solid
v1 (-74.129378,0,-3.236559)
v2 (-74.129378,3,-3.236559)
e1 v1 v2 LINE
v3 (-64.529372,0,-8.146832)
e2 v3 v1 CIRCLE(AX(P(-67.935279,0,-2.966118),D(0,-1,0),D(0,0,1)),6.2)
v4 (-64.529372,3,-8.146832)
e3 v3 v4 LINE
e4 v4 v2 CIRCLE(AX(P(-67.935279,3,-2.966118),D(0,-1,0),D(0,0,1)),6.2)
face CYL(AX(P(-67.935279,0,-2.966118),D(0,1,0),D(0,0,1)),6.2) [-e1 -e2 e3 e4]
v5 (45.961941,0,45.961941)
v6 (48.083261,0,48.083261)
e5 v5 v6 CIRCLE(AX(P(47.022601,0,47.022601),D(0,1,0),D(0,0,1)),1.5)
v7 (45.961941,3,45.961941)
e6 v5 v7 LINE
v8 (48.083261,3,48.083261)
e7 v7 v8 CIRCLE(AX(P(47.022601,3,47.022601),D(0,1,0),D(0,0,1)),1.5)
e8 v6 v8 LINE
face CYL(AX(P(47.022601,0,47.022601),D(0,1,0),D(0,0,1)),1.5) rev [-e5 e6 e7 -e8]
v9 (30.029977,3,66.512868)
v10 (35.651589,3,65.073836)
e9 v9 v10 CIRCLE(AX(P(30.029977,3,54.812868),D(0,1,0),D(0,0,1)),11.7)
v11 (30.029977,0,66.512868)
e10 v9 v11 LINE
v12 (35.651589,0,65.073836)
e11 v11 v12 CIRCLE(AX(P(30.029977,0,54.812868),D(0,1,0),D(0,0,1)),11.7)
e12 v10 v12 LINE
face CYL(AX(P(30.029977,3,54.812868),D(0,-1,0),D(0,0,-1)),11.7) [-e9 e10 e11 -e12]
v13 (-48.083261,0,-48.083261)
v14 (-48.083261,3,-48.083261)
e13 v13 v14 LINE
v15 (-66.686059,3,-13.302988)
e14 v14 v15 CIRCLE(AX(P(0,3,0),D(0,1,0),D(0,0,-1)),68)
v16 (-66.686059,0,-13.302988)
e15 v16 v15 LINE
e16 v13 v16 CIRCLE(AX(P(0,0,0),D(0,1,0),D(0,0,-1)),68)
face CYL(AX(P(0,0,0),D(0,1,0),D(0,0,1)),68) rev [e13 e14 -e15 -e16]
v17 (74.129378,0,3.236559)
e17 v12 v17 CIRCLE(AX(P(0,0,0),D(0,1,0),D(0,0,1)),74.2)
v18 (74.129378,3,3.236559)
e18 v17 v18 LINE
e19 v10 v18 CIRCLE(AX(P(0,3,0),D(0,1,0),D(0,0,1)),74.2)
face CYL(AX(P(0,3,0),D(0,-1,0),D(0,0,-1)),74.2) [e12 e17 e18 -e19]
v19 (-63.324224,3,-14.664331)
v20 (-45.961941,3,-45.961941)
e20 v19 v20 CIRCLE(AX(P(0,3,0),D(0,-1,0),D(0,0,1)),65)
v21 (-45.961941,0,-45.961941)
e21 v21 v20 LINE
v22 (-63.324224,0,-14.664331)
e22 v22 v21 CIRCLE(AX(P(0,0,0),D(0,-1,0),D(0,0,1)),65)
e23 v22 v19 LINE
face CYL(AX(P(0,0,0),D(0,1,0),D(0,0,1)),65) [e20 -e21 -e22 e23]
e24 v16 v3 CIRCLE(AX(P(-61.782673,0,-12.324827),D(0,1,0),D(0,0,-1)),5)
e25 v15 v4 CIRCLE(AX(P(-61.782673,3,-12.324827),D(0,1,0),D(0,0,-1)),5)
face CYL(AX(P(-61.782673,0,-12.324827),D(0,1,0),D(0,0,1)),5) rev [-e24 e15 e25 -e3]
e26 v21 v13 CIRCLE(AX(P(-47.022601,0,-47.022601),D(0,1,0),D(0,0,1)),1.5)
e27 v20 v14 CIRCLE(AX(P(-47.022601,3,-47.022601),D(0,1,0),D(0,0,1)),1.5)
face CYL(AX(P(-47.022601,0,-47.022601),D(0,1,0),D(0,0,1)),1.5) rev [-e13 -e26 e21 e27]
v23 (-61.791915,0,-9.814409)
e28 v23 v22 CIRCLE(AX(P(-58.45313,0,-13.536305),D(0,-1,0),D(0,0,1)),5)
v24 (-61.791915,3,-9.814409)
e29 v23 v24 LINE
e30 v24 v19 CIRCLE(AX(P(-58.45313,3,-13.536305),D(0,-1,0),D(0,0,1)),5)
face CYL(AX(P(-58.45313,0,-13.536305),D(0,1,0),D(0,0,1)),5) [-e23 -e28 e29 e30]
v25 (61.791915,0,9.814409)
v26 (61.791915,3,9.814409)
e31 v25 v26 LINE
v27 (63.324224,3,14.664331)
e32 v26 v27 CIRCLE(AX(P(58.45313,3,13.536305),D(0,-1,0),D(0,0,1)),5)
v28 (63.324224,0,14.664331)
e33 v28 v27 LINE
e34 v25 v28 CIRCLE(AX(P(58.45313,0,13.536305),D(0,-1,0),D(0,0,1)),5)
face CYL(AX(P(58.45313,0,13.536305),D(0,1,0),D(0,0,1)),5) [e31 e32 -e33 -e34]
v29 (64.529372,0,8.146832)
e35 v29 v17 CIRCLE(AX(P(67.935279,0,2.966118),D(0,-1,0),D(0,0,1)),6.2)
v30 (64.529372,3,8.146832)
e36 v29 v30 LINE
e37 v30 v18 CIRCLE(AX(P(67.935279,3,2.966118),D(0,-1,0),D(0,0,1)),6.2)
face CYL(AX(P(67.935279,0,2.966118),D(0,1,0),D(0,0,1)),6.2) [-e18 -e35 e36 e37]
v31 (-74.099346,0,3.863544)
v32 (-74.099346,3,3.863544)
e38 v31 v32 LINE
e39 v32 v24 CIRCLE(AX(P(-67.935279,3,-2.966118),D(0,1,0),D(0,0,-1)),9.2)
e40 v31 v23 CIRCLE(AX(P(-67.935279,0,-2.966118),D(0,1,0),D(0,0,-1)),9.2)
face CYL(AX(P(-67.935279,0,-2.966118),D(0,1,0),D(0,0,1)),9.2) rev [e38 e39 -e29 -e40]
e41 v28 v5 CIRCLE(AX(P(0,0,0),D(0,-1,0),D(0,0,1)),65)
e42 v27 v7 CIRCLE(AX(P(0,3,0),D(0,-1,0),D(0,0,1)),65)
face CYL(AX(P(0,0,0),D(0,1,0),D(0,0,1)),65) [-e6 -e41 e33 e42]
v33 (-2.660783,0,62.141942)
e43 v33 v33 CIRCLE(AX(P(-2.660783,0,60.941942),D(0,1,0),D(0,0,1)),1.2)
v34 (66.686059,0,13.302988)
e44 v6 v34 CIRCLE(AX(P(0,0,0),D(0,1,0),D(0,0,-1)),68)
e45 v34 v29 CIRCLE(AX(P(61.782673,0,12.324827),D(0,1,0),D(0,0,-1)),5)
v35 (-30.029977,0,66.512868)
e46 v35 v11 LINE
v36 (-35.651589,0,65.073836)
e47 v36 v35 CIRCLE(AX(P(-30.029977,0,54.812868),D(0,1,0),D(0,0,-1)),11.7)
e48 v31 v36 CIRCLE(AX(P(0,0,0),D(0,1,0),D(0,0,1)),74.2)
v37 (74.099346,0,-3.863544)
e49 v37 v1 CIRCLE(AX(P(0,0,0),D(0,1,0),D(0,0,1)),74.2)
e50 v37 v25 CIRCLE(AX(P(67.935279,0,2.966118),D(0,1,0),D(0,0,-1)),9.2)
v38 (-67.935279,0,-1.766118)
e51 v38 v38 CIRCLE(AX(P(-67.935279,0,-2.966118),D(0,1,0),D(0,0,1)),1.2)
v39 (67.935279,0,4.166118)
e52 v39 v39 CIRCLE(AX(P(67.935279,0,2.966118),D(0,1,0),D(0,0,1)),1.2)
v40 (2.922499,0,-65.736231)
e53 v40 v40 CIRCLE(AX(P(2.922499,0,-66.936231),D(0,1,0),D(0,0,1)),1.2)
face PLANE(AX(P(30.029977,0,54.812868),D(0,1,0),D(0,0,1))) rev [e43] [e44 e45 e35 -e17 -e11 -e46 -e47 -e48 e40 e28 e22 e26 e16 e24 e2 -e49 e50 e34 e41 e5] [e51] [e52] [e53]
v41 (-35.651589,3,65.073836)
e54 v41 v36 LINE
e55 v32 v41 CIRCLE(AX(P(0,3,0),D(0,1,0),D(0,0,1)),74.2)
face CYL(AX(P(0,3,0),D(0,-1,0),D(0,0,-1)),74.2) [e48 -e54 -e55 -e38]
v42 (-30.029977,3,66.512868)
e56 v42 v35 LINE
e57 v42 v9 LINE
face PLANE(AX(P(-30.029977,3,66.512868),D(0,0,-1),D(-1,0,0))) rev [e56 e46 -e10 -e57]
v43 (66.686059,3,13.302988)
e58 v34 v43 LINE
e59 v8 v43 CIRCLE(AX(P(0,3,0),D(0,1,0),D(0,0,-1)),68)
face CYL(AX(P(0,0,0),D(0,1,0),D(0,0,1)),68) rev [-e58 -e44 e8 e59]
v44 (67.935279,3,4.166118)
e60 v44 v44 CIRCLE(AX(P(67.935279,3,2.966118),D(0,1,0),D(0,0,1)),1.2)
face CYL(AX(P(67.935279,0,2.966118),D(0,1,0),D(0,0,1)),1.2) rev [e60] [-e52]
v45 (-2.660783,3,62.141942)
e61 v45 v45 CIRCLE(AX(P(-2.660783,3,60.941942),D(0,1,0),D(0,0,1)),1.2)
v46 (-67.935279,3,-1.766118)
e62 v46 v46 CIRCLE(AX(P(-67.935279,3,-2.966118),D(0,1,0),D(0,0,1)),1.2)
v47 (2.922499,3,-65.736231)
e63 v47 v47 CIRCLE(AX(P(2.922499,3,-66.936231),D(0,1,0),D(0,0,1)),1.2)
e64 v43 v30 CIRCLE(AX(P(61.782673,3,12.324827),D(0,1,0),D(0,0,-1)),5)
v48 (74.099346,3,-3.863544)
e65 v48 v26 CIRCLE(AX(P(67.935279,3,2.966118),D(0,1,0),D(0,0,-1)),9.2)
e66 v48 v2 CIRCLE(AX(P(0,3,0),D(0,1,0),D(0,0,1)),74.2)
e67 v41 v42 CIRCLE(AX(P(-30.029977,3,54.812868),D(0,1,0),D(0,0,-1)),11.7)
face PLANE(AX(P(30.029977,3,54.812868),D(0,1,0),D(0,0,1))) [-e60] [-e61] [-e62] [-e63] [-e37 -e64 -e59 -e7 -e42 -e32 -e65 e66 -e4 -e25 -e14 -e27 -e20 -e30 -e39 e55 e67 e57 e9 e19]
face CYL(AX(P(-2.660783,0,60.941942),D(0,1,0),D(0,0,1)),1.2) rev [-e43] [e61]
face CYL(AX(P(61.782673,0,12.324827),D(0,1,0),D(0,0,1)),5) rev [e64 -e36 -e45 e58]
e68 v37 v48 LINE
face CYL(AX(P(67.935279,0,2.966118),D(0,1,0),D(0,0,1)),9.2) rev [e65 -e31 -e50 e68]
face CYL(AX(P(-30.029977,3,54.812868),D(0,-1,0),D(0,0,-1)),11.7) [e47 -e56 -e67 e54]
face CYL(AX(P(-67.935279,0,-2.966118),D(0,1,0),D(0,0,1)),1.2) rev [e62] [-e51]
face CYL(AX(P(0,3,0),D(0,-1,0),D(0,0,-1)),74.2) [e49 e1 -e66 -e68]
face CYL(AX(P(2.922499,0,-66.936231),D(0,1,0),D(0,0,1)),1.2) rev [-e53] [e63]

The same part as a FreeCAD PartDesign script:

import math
import FreeCAD as App
import Part
import Sketcher

V = App.Vector
Q = App.Units.Quantity

doc = App.newDocument("Part")
body = doc.addObject("PartDesign::Body", "Body")

# Sketch on XZ plane
sketch1 = body.newObject("Sketcher::SketchObject", "Sketch")
sketch1.AttachmentSupport = (doc.getObject("XZ_Plane"), [""])
sketch1.MapMode = "FlatFace"
sketch1.addGeometry([
    Part.LineSegment(V(-30, 67, 0), V(30, 67, 0)),
    Part.ArcOfCircle(Part.Circle(V(30, 55, 0), V(0, 0, 1), 12), math.radians(61), math.radians(90)),
    Part.ArcOfCircle(Part.Circle(V(0, 0, 0), V(0, 0, 1), 74), math.radians(119), math.radians(421)),
    Part.ArcOfCircle(Part.Circle(V(-30, 55, 0), V(0, 0, 1), 12), math.radians(90), math.radians(119)),
], False)
sketch1.addConstraint([
    Sketcher.Constraint("Tangent", 0, 2, 1, 2),
    Sketcher.Constraint("Tangent", 1, 1, 2, 2),
    Sketcher.Constraint("Tangent", 2, 1, 3, 2),
    Sketcher.Constraint("Tangent", 3, 1, 0, 1),
    Sketcher.Constraint("Horizontal", 0),
    Sketcher.Constraint("Coincident", 2, 3, -1, 1),
    Sketcher.Constraint("Equal", 1, 3),
    Sketcher.Constraint("Radius", 1, Q("11.7 mm")),
    Sketcher.Constraint("Radius", 2, Q("74.2 mm")),
    Sketcher.Constraint("DistanceX", 0, 1, 0, 2, Q("60.059955 mm")),
])
pad1 = body.newObject("PartDesign::Pad", "Pad")
pad1.Profile = sketch1
pad1.Length = 3
pad1.Reversed = True

# Sketch on XZ plane
sketch2 = body.newObject("Sketcher::SketchObject", "Sketch001")
sketch2.AttachmentSupport = (doc.getObject("XZ_Plane"), [""])
sketch2.MapMode = "FlatFace"
sketch2.AttachmentOffset = App.Placement(V(0, 0, -3), App.Rotation())
sketch2.addGeometry([
    Part.Circle(V(-2.7, 60.9, 0), V(0, 0, 1), 1.2),
    Part.Circle(V(-67.9, -3, 0), V(0, 0, 1), 1.2),
    Part.Circle(V(2.9, -66.9, 0), V(0, 0, 1), 1.2),
    Part.Circle(V(67.9, 3, 0), V(0, 0, 1), 1.2),
], False)
sketch2.addConstraint([
    Sketcher.Constraint("Equal", 0, 1),
    Sketcher.Constraint("Equal", 1, 2),
    Sketcher.Constraint("Equal", 2, 3),
    Sketcher.Constraint("Symmetric", 1, 3, 3, 3, -1, 1),
    Sketcher.Constraint("Diameter", 0, Q("2.4 mm")),
    Sketcher.Constraint("DistanceX", -1, 1, 2, 3, Q("2.922499 mm")),
    Sketcher.Constraint("DistanceY", -1, 1, 0, 3, Q("60.941942 mm")),
    Sketcher.Constraint("DistanceX", 1, 3, -1, 1, Q("67.935279 mm")),
    Sketcher.Constraint("DistanceY", 1, 3, -1, 1, Q("2.966118 mm")),
    Sketcher.Constraint("DistanceY", 2, 3, -1, 1, Q("66.936231 mm")),
    Sketcher.Constraint("DistanceX", 0, 3, 2, 3, Q("5.583282 mm")),
])
pocket1 = body.newObject("PartDesign::Pocket", "Pocket")
pocket1.Profile = sketch2
pocket1.Type = "ThroughAll"
pocket1.Reversed = True

# Sketch on XZ plane
sketch3 = body.newObject("Sketcher::SketchObject", "Sketch002")
sketch3.AttachmentSupport = (doc.getObject("XZ_Plane"), [""])
sketch3.MapMode = "FlatFace"
sketch3.AttachmentOffset = App.Placement(V(0, 0, -3), App.Rotation())
sketch3.addGeometry([
    Part.ArcOfCircle(Part.Circle(V(-67.9, -3, 0), V(0, 0, 1), 6.2), math.radians(-57), math.radians(183)),  # 0
    Part.ArcOfCircle(Part.Circle(V(0, 0, 0), V(0, 0, 1), 74.2), math.radians(177.02), math.radians(182.5)),  # 1
    Part.ArcOfCircle(Part.Circle(V(-67.9, -3, 0), V(0, 0, 1), 9.2), math.radians(-48), math.radians(132)),  # 2
    Part.ArcOfCircle(Part.Circle(V(-58.5, -13.5, 0), V(0, 0, 1), 5), math.radians(132), math.radians(193)),  # 3
    Part.ArcOfCircle(Part.Circle(V(0, 0, 0), V(0, 0, 1), 65), math.radians(-167), math.radians(-135)),  # 4
    Part.ArcOfCircle(Part.Circle(V(-47, -47, 0), V(0, 0, 1), 1.5), math.radians(-135), math.radians(45)),  # 5
    Part.ArcOfCircle(Part.Circle(V(0, 0, 0), V(0, 0, 1), 68), math.radians(-169), math.radians(-135)),  # 6
    Part.ArcOfCircle(Part.Circle(V(-61.8, -12.3, 0), V(0, 0, 1), 5), math.radians(123), math.radians(191)),  # 7
    Part.ArcOfCircle(Part.Circle(V(67.9, 3, 0), V(0, 0, 1), 6.2), math.radians(123), math.radians(363)),  # 8
    Part.ArcOfCircle(Part.Circle(V(0, 0, 0), V(0, 0, 1), 74.2), math.radians(-2.98), math.radians(2.5)),  # 9
    Part.ArcOfCircle(Part.Circle(V(67.9, 3, 0), V(0, 0, 1), 9.2), math.radians(132), math.radians(312)),  # 10
    Part.ArcOfCircle(Part.Circle(V(58.5, 13.5, 0), V(0, 0, 1), 5), math.radians(-48), math.radians(13)),  # 11
    Part.ArcOfCircle(Part.Circle(V(0, 0, 0), V(0, 0, 1), 65), math.radians(13), math.radians(45)),  # 12
    Part.ArcOfCircle(Part.Circle(V(47, 47, 0), V(0, 0, 1), 1.5), math.radians(45), math.radians(225)),  # 13
    Part.ArcOfCircle(Part.Circle(V(0, 0, 0), V(0, 0, 1), 68), math.radians(11), math.radians(45)),  # 14
    Part.ArcOfCircle(Part.Circle(V(61.8, 12.3, 0), V(0, 0, 1), 5), math.radians(-57), math.radians(11)),  # 15
], False)
sketch3.addConstraint([
    Sketcher.Constraint("Tangent", 0, 2, 1, 2),
    Sketcher.Constraint("Coincident", 1, 1, 2, 2),
    Sketcher.Constraint("Tangent", 2, 1, 3, 1),
    Sketcher.Constraint("Tangent", 3, 2, 4, 1),
    Sketcher.Constraint("Tangent", 4, 2, 5, 2),
    Sketcher.Constraint("Tangent", 5, 1, 6, 2),
    Sketcher.Constraint("Tangent", 6, 1, 7, 2),
    Sketcher.Constraint("Tangent", 7, 1, 0, 1),
    Sketcher.Constraint("Tangent", 8, 2, 9, 2),
    Sketcher.Constraint("Coincident", 9, 1, 10, 2),
    Sketcher.Constraint("Tangent", 10, 1, 11, 1),
    Sketcher.Constraint("Tangent", 11, 2, 12, 1),
    Sketcher.Constraint("Tangent", 12, 2, 13, 2),
    Sketcher.Constraint("Tangent", 13, 1, 14, 2),
    Sketcher.Constraint("Tangent", 14, 1, 15, 2),
    Sketcher.Constraint("Tangent", 15, 1, 8, 1),
    Sketcher.Constraint("Coincident", 1, 3, -1, 1),
    Sketcher.Constraint("Coincident", 4, 3, -1, 1),
    Sketcher.Constraint("Coincident", 6, 3, -1, 1),
    Sketcher.Constraint("Coincident", 9, 3, -1, 1),
    Sketcher.Constraint("Coincident", 12, 3, -1, 1),
    Sketcher.Constraint("Coincident", 14, 3, -1, 1),
    Sketcher.Constraint("Coincident", 2, 3, 0, 3),
    Sketcher.Constraint("Coincident", 10, 3, 8, 3),
    Sketcher.Constraint("Equal", 3, 7),
    Sketcher.Constraint("Equal", 0, 8),
    Sketcher.Constraint("Equal", 1, 9),
    Sketcher.Constraint("Equal", 2, 10),
    Sketcher.Constraint("Equal", 7, 11),
    Sketcher.Constraint("Equal", 4, 12),
    Sketcher.Constraint("Equal", 5, 13),
    Sketcher.Constraint("Equal", 11, 15),
    Sketcher.Constraint("Radius", 3, Q("5 mm")),
    Sketcher.Constraint("Radius", 4, Q("65 mm")),
    Sketcher.Constraint("Radius", 6, Q("68 mm")),
    Sketcher.Constraint("Radius", 0, Q("6.2 mm")),
    Sketcher.Constraint("Radius", 1, Q("74.2 mm")),
    Sketcher.Constraint("Radius", 2, Q("9.2 mm")),
    Sketcher.Constraint("DistanceX", 5, 3, -1, 1, Q("47.022601 mm")),
    Sketcher.Constraint("DistanceX", -1, 1, 13, 3, Q("47.022601 mm")),
    Sketcher.Constraint("DistanceX", 0, 2, 0, 3, Q("6.194099 mm")),
    Sketcher.Constraint("DistanceX", 8, 3, 8, 2, Q("6.194099 mm")),
])
pocket2 = body.newObject("PartDesign::Pocket", "Pocket001")
pocket2.Profile = sketch3
pocket2.Type = "ThroughAll"
pocket2.Reversed = True

doc.recompute()
